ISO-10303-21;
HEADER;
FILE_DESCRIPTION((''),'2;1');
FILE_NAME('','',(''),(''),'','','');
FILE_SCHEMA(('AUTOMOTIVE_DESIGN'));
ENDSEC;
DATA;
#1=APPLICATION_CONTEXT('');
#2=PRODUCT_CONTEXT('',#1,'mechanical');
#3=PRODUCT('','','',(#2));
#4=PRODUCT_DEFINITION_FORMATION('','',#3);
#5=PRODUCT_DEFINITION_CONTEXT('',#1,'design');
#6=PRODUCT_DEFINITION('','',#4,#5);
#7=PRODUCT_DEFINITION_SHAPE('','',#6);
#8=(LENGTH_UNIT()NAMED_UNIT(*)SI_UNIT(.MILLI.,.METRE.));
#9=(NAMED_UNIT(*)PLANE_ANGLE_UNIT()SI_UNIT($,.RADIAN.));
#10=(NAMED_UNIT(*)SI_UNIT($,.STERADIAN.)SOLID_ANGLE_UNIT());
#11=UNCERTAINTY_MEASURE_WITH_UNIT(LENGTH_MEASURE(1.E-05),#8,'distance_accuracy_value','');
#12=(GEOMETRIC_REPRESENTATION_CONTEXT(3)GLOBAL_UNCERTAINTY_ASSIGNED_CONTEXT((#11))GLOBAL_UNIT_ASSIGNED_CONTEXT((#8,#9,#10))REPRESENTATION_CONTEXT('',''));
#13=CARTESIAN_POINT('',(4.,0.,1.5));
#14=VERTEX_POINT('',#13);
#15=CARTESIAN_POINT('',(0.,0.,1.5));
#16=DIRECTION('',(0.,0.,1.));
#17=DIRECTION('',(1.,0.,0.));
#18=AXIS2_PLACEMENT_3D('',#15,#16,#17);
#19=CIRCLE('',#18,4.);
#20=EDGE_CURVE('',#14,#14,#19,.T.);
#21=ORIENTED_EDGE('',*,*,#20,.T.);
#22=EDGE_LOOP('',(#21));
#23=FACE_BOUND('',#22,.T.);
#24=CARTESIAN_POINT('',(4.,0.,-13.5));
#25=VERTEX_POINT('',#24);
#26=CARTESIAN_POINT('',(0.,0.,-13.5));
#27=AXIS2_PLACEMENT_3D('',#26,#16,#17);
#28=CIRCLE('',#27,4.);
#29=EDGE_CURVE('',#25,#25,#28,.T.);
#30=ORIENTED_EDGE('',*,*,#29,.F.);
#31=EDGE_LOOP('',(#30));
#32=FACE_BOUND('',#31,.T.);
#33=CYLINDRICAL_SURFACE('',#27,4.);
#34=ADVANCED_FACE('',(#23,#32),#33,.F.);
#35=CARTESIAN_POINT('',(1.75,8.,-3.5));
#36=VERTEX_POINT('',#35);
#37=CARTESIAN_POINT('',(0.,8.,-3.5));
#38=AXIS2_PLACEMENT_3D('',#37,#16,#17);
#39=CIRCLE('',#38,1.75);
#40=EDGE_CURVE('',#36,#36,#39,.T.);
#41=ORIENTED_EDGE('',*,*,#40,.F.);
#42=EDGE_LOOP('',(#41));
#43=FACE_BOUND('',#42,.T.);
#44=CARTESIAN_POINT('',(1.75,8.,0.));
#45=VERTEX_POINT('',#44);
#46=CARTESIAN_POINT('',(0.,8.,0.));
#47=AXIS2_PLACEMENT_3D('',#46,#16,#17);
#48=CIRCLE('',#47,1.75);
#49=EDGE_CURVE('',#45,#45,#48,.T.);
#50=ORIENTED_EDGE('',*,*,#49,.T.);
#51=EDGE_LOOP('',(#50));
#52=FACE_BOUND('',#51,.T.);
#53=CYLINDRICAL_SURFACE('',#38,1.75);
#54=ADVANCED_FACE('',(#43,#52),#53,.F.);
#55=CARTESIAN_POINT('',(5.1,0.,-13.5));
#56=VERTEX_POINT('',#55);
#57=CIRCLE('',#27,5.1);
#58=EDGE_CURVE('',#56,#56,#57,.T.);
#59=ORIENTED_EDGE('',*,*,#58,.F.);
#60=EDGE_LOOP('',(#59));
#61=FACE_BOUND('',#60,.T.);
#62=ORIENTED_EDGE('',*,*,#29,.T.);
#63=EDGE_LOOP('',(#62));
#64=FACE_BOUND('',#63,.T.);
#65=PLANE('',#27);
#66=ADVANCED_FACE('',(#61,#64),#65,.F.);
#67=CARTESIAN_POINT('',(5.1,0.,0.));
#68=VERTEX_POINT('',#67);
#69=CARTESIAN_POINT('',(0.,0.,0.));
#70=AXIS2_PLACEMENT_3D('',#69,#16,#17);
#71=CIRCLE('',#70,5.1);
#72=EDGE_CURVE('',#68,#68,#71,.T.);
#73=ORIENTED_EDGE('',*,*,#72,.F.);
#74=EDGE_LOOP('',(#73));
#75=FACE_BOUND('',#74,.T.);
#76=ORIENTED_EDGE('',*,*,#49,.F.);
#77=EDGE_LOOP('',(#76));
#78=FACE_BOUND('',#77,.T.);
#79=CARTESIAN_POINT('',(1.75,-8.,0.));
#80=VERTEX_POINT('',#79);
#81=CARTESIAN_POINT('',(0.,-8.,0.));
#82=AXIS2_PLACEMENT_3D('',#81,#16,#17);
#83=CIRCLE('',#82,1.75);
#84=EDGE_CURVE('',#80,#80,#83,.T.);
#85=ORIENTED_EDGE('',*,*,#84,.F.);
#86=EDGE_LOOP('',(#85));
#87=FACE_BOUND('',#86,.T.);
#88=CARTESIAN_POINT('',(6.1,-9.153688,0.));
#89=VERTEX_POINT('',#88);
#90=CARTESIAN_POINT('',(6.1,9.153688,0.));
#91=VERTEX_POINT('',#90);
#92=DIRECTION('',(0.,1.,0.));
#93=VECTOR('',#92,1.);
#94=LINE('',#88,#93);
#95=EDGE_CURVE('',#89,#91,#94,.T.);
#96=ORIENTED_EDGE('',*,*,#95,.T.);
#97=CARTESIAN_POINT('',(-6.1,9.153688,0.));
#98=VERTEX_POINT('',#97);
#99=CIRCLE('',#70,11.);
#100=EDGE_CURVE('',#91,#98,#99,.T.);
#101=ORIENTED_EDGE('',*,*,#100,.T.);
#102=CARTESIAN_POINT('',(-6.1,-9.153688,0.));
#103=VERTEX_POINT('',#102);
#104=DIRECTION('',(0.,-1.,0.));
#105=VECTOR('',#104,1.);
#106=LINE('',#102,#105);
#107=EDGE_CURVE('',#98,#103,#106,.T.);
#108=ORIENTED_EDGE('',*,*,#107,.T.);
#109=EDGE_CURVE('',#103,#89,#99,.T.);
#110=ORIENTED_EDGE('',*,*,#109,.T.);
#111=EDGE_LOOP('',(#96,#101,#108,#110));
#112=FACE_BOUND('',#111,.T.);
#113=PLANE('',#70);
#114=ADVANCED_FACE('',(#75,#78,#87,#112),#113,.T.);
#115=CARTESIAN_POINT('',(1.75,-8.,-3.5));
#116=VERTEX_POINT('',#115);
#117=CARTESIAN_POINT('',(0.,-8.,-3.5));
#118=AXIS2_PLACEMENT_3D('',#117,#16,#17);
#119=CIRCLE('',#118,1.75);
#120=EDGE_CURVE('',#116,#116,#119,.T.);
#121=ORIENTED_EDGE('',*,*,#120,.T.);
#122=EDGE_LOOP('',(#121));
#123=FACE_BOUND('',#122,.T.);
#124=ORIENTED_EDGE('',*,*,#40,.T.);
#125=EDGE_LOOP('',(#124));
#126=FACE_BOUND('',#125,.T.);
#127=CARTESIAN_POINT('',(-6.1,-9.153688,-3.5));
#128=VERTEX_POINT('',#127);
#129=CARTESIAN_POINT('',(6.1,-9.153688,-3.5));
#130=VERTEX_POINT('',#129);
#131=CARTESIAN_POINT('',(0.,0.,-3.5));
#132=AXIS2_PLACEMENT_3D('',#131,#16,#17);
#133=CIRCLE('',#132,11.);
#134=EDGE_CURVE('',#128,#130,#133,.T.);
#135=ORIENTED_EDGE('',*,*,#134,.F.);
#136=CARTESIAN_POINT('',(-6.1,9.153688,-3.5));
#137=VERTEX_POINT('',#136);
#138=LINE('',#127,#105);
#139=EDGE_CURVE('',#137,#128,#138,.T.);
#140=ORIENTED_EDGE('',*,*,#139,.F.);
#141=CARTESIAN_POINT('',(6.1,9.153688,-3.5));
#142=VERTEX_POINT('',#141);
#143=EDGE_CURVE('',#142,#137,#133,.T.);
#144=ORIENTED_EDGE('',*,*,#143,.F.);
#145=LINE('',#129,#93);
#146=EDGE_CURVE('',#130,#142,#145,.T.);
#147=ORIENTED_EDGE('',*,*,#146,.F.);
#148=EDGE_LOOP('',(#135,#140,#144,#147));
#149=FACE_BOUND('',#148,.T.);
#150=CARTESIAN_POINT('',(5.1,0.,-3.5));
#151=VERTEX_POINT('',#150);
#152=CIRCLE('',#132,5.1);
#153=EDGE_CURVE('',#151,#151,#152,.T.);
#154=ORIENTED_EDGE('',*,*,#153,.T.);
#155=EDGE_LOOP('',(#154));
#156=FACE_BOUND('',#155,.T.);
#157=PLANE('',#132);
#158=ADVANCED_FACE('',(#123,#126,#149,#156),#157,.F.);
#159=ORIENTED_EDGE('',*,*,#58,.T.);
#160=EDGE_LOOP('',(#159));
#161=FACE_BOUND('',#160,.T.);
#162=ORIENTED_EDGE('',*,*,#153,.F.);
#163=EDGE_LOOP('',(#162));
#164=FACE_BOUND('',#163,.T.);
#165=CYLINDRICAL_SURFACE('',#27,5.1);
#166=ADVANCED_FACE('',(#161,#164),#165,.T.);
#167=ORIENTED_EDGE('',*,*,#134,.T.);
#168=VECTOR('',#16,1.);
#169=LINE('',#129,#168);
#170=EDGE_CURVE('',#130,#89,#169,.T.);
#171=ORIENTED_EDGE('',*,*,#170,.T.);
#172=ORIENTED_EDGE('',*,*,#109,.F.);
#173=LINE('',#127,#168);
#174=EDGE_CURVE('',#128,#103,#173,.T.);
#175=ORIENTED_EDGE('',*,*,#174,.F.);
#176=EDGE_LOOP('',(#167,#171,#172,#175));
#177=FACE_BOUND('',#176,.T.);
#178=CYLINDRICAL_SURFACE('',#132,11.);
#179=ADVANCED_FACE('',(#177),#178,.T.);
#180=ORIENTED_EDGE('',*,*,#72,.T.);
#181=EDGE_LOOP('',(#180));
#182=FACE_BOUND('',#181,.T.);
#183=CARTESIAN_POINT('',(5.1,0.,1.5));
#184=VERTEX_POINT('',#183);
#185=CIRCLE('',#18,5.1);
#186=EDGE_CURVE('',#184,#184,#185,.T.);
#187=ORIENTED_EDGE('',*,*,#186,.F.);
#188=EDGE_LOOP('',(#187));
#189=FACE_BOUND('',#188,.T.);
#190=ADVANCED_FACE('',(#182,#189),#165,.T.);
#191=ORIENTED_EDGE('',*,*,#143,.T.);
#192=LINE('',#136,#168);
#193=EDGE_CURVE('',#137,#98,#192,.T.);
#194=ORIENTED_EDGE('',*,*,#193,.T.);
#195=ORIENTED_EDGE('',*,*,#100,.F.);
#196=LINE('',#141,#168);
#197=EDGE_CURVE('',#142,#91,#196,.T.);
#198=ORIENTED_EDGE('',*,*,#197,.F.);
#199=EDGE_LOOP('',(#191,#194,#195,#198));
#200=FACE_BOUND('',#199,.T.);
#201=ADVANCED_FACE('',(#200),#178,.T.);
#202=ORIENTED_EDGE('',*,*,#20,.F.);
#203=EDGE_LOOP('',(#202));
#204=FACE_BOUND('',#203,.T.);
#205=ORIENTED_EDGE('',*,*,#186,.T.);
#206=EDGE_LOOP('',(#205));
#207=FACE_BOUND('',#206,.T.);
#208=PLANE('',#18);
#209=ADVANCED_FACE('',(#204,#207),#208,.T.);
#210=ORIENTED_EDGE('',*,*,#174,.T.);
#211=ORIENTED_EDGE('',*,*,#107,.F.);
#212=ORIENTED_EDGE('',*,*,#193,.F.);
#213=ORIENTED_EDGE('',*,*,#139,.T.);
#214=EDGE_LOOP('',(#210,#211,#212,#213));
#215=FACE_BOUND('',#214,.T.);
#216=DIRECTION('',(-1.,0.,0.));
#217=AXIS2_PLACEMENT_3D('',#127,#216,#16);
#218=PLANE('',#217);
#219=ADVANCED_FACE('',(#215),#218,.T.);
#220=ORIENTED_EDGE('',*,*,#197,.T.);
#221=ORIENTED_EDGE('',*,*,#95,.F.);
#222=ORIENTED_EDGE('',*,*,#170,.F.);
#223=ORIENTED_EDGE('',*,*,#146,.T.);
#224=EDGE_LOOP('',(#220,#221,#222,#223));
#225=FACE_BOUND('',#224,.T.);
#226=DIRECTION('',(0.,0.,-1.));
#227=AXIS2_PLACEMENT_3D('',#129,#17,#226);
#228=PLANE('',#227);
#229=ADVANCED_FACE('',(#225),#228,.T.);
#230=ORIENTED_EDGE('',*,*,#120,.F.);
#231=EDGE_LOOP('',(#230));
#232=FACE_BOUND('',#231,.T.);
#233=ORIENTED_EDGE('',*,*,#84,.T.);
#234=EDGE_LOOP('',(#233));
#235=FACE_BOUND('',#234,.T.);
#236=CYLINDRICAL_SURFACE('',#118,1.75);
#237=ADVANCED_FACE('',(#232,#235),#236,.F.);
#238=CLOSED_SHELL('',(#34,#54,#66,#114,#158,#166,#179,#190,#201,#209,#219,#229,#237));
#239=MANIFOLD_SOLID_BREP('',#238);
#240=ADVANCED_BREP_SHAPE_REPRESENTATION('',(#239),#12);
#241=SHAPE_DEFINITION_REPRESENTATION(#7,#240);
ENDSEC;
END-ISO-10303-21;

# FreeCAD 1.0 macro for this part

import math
import FreeCAD as App
import Part
import Sketcher
from FreeCAD import Vector

doc = App.newDocument("Part")
params = doc.addObject("Spreadsheet::Sheet", "Params")
for row, (alias, value) in enumerate([
    ("sketch1_radius", "11 mm"),
    ("sketch1_diameter", "3.5 mm"),
    ("sketch1_diameter2", "10.2 mm"),
    ("pad1_length", "3.5 mm"),
    ("sketch2_diameter", "8 mm"),
    ("sketch2_diameter2", "10.2 mm"),
    ("pad2_length", "1.5 mm"),
    ("pad2_length2", "13.5 mm"),
], start=1):
    params.set(f"A{row}", alias)
    params.set(f"B{row}", "=" + value)
    params.setAlias(f"B{row}", alias)

body = doc.addObject("PartDesign::Body", "Body")

sketch1 = body.newObject("Sketcher::SketchObject", "Sketch")
sketch1.AttachmentSupport = (doc.getObject("XY_Plane"), [""])
sketch1.MapMode = "FlatFace"
sketch1.addGeometry(Part.LineSegment(Vector(-6.1, 9.2, 0), Vector(-6.1, -9.2, 0)), False)
sketch1.addGeometry(Part.ArcOfCircle(Part.Circle(Vector(0, 0, 0), Vector(0, 0, 1), 11), math.radians(-124), math.radians(-56)), False)
sketch1.addGeometry(Part.LineSegment(Vector(6.1, -9.2, 0), Vector(6.1, 9.2, 0)), False)
sketch1.addGeometry(Part.ArcOfCircle(Part.Circle(Vector(0, 0, 0), Vector(0, 0, 1), 11), math.radians(56), math.radians(124)), False)
sketch1.addGeometry(Part.Circle(Vector(0, -8, 0), Vector(0, 0, 1), 1.8), False)
sketch1.addGeometry(Part.Circle(Vector(0, 0, 0), Vector(0, 0, 1), 5.1), False)
sketch1.addGeometry(Part.Circle(Vector(0, 8, 0), Vector(0, 0, 1), 1.8), False)
sketch1.addConstraint(Sketcher.Constraint("Coincident", 0, 2, 1, 1))
sketch1.addConstraint(Sketcher.Constraint("Coincident", 1, 2, 2, 1))
sketch1.addConstraint(Sketcher.Constraint("Coincident", 2, 2, 3, 1))
sketch1.addConstraint(Sketcher.Constraint("Coincident", 3, 2, 0, 1))
sketch1.addConstraint(Sketcher.Constraint("Vertical", 0))
sketch1.addConstraint(Sketcher.Constraint("Vertical", 2))
sketch1.addConstraint(Sketcher.Constraint("Coincident", 1, 3, -1, 1))
sketch1.addConstraint(Sketcher.Constraint("Coincident", 3, 3, -1, 1))
sketch1.addConstraint(Sketcher.Constraint("Coincident", 5, 3, -1, 1))
sketch1.addConstraint(Sketcher.Constraint("Equal", 1, 3))
sketch1.addConstraint(Sketcher.Constraint("Equal", 4, 6))
sketch1.addConstraint(Sketcher.Constraint("Symmetric", 4, 3, 6, 3, -1, 1))
sketch1.addConstraint(Sketcher.Constraint("PointOnObject", 4, 3, -2))
sketch1.addConstraint(Sketcher.Constraint("Horizontal", 0, 2, 1, 2))
sketch1.addConstraint(Sketcher.Constraint("Radius", 1, 11.0))
sketch1.addConstraint(Sketcher.Constraint("Diameter", 4, 3.5))
sketch1.addConstraint(Sketcher.Constraint("Diameter", 5, 10.2))
sketch1.addConstraint(Sketcher.Constraint("DistanceY", 4, 3, -1, 1, 8.0))
sketch1.addConstraint(Sketcher.Constraint("DistanceX", 0, 2, -1, 1, 6.1))
sketch1.setExpression("Constraints[14]", "Params.sketch1_radius")
sketch1.setExpression("Constraints[15]", "Params.sketch1_diameter")
sketch1.setExpression("Constraints[16]", "Params.sketch1_diameter2")
pad1 = body.newObject("PartDesign::Pad", "Pad")
pad1.Profile = sketch1
pad1.setExpression("Length", "Params.pad1_length")
pad1.Reversed = True

sketch2 = body.newObject("Sketcher::SketchObject", "Sketch001")
sketch2.AttachmentSupport = (doc.getObject("XY_Plane"), [""])
sketch2.MapMode = "FlatFace"
sketch2.addGeometry(Part.Circle(Vector(0, 0, 0), Vector(0, 0, 1), 5.1), False)
sketch2.addGeometry(Part.Circle(Vector(0, 0, 0), Vector(0, 0, 1), 4), False)
sketch2.addConstraint(Sketcher.Constraint("Coincident", 0, 3, -1, 1))
sketch2.addConstraint(Sketcher.Constraint("Coincident", 1, 3, -1, 1))
sketch2.addConstraint(Sketcher.Constraint("Diameter", 1, 8.0))
sketch2.addConstraint(Sketcher.Constraint("Diameter", 0, 10.2))
sketch2.setExpression("Constraints[2]", "Params.sketch2_diameter")
sketch2.setExpression("Constraints[3]", "Params.sketch2_diameter2")
pad2 = body.newObject("PartDesign::Pad", "Pad001")
pad2.Profile = sketch2
pad2.Type = "TwoLengths"
pad2.setExpression("Length", "Params.pad2_length")
pad2.setExpression("Length2", "Params.pad2_length2")

doc.recompute()
